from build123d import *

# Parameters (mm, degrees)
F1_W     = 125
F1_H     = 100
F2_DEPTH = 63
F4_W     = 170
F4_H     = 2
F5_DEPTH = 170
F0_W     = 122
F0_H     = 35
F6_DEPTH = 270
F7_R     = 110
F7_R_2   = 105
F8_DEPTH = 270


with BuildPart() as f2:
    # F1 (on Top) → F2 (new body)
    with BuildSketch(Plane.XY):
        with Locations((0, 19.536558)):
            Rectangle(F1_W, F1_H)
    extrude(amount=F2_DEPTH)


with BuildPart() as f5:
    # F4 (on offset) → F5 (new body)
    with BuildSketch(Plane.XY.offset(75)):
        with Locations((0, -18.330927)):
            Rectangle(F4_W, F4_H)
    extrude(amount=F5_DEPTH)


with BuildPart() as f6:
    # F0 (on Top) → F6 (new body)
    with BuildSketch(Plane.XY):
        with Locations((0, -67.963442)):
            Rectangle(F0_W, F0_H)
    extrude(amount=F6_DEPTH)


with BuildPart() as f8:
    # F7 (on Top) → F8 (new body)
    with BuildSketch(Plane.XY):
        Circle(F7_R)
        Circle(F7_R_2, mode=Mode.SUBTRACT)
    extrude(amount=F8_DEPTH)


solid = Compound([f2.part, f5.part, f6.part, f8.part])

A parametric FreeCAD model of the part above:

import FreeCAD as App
import Part
import Sketcher

V = App.Vector

doc = App.newDocument("Part")
body = doc.addObject("PartDesign::Body", "Body")

# Sketch on XY plane
sketch1 = body.newObject("Sketcher::SketchObject", "Sketch")
sketch1.AttachmentSupport = (doc.getObject("XY_Plane"), [""])
sketch1.MapMode = "FlatFace"
sketch1.addGeometry(Part.LineSegment(V(-62, 70, 0), V(-62, -30, 0)), False)
sketch1.addGeometry(Part.LineSegment(V(-62, -30, 0), V(62, -30, 0)), False)
sketch1.addGeometry(Part.LineSegment(V(62, -30, 0), V(62, 70, 0)), False)
sketch1.addGeometry(Part.LineSegment(V(62, 70, 0), V(-62, 70, 0)), False)
sketch1.addConstraint(Sketcher.Constraint("Coincident", 0, 2, 1, 1))
sketch1.addConstraint(Sketcher.Constraint("Coincident", 1, 2, 2, 1))
sketch1.addConstraint(Sketcher.Constraint("Coincident", 2, 2, 3, 1))
sketch1.addConstraint(Sketcher.Constraint("Coincident", 3, 2, 0, 1))
sketch1.addConstraint(Sketcher.Constraint("Vertical", 0))
sketch1.addConstraint(Sketcher.Constraint("Horizontal", 1))
sketch1.addConstraint(Sketcher.Constraint("Vertical", 2))
sketch1.addConstraint(Sketcher.Constraint("Horizontal", 3))
sketch1.addConstraint(Sketcher.Constraint("DistanceX", 1, 1, 1, 2, 125.0))
sketch1.addConstraint(Sketcher.Constraint("DistanceY", 0, 2, 0, 1, 100.0))
sketch1.addConstraint(Sketcher.Constraint("DistanceX", 0, 2, -1, 1, 62.5))
sketch1.addConstraint(Sketcher.Constraint("DistanceY", -1, 1, 2, 2, 69.536558))
pad1 = body.newObject("PartDesign::Pad", "Pad")
pad1.Profile = sketch1
pad1.Length = 63
body2 = doc.addObject("PartDesign::Body", "Body001")

# Sketch on XY plane
sketch2 = body2.newObject("Sketcher::SketchObject", "Sketch001")
sketch2.AttachmentSupport = (doc.getObject("XY_Plane001"), [""])
sketch2.MapMode = "FlatFace"
sketch2.AttachmentOffset = App.Placement(V(0, 0, 75), App.Rotation())
sketch2.addGeometry(Part.LineSegment(V(-85, -17.3, 0), V(-85, -19.3, 0)), False)
sketch2.addGeometry(Part.LineSegment(V(-85, -19.3, 0), V(85, -19.3, 0)), False)
sketch2.addGeometry(Part.LineSegment(V(85, -19.3, 0), V(85, -17.3, 0)), False)
sketch2.addGeometry(Part.LineSegment(V(85, -17.3, 0), V(-85, -17.3, 0)), False)
sketch2.addConstraint(Sketcher.Constraint("Coincident", 0, 2, 1, 1))
sketch2.addConstraint(Sketcher.Constraint("Coincident", 1, 2, 2, 1))
sketch2.addConstraint(Sketcher.Constraint("Coincident", 2, 2, 3, 1))
sketch2.addConstraint(Sketcher.Constraint("Coincident", 3, 2, 0, 1))
sketch2.addConstraint(Sketcher.Constraint("Vertical", 0))
sketch2.addConstraint(Sketcher.Constraint("Horizontal", 1))
sketch2.addConstraint(Sketcher.Constraint("Vertical", 2))
sketch2.addConstraint(Sketcher.Constraint("Horizontal", 3))
sketch2.addConstraint(Sketcher.Constraint("DistanceX", 1, 1, 1, 2, 170.0))
sketch2.addConstraint(Sketcher.Constraint("DistanceY", 0, 2, 0, 1, 2.0))
sketch2.addConstraint(Sketcher.Constraint("DistanceX", 0, 2, -1, 1, 85.0))
sketch2.addConstraint(Sketcher.Constraint("DistanceY", 0, 2, -1, 1, 19.330927))
pad2 = body2.newObject("PartDesign::Pad", "Pad001")
pad2.Profile = sketch2
pad2.Length = 170
body3 = doc.addObject("PartDesign::Body", "Body002")

# Sketch on XY plane
sketch3 = body3.newObject("Sketcher::SketchObject", "Sketch002")
sketch3.AttachmentSupport = (doc.getObject("XY_Plane002"), [""])
sketch3.MapMode = "FlatFace"
sketch3.addGeometry(Part.LineSegment(V(-61, -50, 0), V(-61, -85, 0)), False)
sketch3.addGeometry(Part.LineSegment(V(-61, -85, 0), V(61, -85, 0)), False)
sketch3.addGeometry(Part.LineSegment(V(61, -85, 0), V(61, -50, 0)), False)
sketch3.addGeometry(Part.LineSegment(V(61, -50, 0), V(-61, -50, 0)), False)
sketch3.addConstraint(Sketcher.Constraint("Coincident", 0, 2, 1, 1))
sketch3.addConstraint(Sketcher.Constraint("Coincident", 1, 2, 2, 1))
sketch3.addConstraint(Sketcher.Constraint("Coincident", 2, 2, 3, 1))
sketch3.addConstraint(Sketcher.Constraint("Coincident", 3, 2, 0, 1))
sketch3.addConstraint(Sketcher.Constraint("Vertical", 0))
sketch3.addConstraint(Sketcher.Constraint("Horizontal", 1))
sketch3.addConstraint(Sketcher.Constraint("Vertical", 2))
sketch3.addConstraint(Sketcher.Constraint("Horizontal", 3))
sketch3.addConstraint(Sketcher.Constraint("DistanceX", 1, 1, 1, 2, 122.0))
sketch3.addConstraint(Sketcher.Constraint("DistanceY", 0, 2, 0, 1, 35.0))
sketch3.addConstraint(Sketcher.Constraint("DistanceX", 0, 2, -1, 1, 61.0))
sketch3.addConstraint(Sketcher.Constraint("DistanceY", 0, 2, -1, 1, 85.463442))
pad3 = body3.newObject("PartDesign::Pad", "Pad002")
pad3.Profile = sketch3
pad3.Length = 270
body4 = doc.addObject("PartDesign::Body", "Body003")

# Sketch on XY plane
sketch4 = body4.newObject("Sketcher::SketchObject", "Sketch003")
sketch4.AttachmentSupport = (doc.getObject("XY_Plane003"), [""])
sketch4.MapMode = "FlatFace"
sketch4.addGeometry(Part.Circle(V(0, 0, 0), V(0, 0, 1), 110), False)
sketch4.addGeometry(Part.Circle(V(0, 0, 0), V(0, 0, 1), 105), False)
sketch4.addConstraint(Sketcher.Constraint("Coincident", 0, 3, -1, 1))
sketch4.addConstraint(Sketcher.Constraint("Coincident", 1, 3, -1, 1))
sketch4.addConstraint(Sketcher.Constraint("Diameter", 0, 220.0))
sketch4.addConstraint(Sketcher.Constraint("Diameter", 1, 210.0))
pad4 = body4.newObject("PartDesign::Pad", "Pad003")
pad4.Profile = sketch4
pad4.Length = 270

doc.recompute()
